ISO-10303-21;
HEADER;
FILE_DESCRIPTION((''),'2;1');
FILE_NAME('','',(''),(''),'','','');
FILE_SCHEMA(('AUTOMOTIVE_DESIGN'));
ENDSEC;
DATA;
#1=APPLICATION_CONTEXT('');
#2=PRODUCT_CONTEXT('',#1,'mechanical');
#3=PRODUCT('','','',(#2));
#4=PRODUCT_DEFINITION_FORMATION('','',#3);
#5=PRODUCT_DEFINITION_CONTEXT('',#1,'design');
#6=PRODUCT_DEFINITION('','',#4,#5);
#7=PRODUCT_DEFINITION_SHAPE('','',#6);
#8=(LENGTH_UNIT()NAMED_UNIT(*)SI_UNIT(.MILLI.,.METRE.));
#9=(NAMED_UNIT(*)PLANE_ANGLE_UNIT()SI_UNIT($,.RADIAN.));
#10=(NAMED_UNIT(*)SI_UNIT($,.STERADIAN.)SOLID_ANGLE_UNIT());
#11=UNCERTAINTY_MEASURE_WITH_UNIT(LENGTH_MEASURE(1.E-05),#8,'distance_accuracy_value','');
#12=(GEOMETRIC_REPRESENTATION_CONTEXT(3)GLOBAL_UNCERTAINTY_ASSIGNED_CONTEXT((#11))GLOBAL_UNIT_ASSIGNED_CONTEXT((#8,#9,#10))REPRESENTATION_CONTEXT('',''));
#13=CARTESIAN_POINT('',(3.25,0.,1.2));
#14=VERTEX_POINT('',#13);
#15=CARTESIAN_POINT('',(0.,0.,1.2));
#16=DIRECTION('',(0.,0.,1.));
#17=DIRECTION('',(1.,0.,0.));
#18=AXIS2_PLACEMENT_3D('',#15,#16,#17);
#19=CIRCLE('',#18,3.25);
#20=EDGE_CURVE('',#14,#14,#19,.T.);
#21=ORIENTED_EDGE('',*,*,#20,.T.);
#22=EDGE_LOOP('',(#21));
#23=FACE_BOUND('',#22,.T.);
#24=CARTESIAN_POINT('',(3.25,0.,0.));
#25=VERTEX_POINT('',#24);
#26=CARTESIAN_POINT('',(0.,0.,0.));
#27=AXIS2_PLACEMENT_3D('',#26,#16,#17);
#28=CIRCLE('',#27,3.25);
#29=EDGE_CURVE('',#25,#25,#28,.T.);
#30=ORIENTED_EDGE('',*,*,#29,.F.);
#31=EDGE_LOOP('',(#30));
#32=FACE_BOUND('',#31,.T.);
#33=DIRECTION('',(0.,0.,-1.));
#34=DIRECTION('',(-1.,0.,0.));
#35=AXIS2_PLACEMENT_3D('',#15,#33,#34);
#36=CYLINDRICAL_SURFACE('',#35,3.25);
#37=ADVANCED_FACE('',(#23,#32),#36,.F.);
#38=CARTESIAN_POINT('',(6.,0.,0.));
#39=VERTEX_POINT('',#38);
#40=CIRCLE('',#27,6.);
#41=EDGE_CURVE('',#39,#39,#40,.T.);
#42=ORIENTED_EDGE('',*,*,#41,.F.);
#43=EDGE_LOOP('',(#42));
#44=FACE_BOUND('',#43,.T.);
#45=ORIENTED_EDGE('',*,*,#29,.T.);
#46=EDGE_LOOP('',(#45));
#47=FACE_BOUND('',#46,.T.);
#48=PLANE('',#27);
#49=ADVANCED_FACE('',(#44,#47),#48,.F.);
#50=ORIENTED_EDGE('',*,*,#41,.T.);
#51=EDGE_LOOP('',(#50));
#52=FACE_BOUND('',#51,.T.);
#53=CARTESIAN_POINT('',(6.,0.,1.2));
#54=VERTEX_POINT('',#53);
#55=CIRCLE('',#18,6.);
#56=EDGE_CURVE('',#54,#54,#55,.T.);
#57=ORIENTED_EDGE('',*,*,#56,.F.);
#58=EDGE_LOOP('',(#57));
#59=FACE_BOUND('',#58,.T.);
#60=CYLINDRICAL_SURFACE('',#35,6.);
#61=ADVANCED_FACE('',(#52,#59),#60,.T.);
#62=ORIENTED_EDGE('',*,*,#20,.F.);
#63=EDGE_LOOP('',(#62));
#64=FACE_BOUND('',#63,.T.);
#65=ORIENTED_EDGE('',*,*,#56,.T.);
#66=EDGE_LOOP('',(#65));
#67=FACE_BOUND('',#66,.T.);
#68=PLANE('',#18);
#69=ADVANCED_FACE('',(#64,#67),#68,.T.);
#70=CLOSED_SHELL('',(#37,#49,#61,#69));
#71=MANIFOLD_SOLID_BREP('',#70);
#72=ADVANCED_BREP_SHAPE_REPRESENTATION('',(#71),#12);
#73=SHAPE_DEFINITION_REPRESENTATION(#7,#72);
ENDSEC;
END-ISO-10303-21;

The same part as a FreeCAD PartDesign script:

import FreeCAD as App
import Part
import Sketcher

V = App.Vector
Q = App.Units.Quantity

doc = App.newDocument("Part")
body = doc.addObject("PartDesign::Body", "Body")

sketch1 = body.newObject("Sketcher::SketchObject", "Sketch")
sketch1.AttachmentSupport = (doc.getObject("XY_Plane"), [""])
sketch1.MapMode = "FlatFace"
sketch1.addGeometry([
    Part.Circle(V(0, 0, 0), V(0, 0, 1), 6),
    Part.Circle(V(0, 0, 0), V(0, 0, 1), 3.2),
], False)
sketch1.addConstraint([
    Sketcher.Constraint("Coincident", 0, 3, -1, 1),
    Sketcher.Constraint("Coincident", 1, 3, -1, 1),
    Sketcher.Constraint("Diameter", 0, Q("12 mm")),
    Sketcher.Constraint("Diameter", 1, Q("6.5 mm")),
])
pad1 = body.newObject("PartDesign::Pad", "Pad")
pad1.Profile = sketch1
pad1.Length = 1.2

doc.recompute()
